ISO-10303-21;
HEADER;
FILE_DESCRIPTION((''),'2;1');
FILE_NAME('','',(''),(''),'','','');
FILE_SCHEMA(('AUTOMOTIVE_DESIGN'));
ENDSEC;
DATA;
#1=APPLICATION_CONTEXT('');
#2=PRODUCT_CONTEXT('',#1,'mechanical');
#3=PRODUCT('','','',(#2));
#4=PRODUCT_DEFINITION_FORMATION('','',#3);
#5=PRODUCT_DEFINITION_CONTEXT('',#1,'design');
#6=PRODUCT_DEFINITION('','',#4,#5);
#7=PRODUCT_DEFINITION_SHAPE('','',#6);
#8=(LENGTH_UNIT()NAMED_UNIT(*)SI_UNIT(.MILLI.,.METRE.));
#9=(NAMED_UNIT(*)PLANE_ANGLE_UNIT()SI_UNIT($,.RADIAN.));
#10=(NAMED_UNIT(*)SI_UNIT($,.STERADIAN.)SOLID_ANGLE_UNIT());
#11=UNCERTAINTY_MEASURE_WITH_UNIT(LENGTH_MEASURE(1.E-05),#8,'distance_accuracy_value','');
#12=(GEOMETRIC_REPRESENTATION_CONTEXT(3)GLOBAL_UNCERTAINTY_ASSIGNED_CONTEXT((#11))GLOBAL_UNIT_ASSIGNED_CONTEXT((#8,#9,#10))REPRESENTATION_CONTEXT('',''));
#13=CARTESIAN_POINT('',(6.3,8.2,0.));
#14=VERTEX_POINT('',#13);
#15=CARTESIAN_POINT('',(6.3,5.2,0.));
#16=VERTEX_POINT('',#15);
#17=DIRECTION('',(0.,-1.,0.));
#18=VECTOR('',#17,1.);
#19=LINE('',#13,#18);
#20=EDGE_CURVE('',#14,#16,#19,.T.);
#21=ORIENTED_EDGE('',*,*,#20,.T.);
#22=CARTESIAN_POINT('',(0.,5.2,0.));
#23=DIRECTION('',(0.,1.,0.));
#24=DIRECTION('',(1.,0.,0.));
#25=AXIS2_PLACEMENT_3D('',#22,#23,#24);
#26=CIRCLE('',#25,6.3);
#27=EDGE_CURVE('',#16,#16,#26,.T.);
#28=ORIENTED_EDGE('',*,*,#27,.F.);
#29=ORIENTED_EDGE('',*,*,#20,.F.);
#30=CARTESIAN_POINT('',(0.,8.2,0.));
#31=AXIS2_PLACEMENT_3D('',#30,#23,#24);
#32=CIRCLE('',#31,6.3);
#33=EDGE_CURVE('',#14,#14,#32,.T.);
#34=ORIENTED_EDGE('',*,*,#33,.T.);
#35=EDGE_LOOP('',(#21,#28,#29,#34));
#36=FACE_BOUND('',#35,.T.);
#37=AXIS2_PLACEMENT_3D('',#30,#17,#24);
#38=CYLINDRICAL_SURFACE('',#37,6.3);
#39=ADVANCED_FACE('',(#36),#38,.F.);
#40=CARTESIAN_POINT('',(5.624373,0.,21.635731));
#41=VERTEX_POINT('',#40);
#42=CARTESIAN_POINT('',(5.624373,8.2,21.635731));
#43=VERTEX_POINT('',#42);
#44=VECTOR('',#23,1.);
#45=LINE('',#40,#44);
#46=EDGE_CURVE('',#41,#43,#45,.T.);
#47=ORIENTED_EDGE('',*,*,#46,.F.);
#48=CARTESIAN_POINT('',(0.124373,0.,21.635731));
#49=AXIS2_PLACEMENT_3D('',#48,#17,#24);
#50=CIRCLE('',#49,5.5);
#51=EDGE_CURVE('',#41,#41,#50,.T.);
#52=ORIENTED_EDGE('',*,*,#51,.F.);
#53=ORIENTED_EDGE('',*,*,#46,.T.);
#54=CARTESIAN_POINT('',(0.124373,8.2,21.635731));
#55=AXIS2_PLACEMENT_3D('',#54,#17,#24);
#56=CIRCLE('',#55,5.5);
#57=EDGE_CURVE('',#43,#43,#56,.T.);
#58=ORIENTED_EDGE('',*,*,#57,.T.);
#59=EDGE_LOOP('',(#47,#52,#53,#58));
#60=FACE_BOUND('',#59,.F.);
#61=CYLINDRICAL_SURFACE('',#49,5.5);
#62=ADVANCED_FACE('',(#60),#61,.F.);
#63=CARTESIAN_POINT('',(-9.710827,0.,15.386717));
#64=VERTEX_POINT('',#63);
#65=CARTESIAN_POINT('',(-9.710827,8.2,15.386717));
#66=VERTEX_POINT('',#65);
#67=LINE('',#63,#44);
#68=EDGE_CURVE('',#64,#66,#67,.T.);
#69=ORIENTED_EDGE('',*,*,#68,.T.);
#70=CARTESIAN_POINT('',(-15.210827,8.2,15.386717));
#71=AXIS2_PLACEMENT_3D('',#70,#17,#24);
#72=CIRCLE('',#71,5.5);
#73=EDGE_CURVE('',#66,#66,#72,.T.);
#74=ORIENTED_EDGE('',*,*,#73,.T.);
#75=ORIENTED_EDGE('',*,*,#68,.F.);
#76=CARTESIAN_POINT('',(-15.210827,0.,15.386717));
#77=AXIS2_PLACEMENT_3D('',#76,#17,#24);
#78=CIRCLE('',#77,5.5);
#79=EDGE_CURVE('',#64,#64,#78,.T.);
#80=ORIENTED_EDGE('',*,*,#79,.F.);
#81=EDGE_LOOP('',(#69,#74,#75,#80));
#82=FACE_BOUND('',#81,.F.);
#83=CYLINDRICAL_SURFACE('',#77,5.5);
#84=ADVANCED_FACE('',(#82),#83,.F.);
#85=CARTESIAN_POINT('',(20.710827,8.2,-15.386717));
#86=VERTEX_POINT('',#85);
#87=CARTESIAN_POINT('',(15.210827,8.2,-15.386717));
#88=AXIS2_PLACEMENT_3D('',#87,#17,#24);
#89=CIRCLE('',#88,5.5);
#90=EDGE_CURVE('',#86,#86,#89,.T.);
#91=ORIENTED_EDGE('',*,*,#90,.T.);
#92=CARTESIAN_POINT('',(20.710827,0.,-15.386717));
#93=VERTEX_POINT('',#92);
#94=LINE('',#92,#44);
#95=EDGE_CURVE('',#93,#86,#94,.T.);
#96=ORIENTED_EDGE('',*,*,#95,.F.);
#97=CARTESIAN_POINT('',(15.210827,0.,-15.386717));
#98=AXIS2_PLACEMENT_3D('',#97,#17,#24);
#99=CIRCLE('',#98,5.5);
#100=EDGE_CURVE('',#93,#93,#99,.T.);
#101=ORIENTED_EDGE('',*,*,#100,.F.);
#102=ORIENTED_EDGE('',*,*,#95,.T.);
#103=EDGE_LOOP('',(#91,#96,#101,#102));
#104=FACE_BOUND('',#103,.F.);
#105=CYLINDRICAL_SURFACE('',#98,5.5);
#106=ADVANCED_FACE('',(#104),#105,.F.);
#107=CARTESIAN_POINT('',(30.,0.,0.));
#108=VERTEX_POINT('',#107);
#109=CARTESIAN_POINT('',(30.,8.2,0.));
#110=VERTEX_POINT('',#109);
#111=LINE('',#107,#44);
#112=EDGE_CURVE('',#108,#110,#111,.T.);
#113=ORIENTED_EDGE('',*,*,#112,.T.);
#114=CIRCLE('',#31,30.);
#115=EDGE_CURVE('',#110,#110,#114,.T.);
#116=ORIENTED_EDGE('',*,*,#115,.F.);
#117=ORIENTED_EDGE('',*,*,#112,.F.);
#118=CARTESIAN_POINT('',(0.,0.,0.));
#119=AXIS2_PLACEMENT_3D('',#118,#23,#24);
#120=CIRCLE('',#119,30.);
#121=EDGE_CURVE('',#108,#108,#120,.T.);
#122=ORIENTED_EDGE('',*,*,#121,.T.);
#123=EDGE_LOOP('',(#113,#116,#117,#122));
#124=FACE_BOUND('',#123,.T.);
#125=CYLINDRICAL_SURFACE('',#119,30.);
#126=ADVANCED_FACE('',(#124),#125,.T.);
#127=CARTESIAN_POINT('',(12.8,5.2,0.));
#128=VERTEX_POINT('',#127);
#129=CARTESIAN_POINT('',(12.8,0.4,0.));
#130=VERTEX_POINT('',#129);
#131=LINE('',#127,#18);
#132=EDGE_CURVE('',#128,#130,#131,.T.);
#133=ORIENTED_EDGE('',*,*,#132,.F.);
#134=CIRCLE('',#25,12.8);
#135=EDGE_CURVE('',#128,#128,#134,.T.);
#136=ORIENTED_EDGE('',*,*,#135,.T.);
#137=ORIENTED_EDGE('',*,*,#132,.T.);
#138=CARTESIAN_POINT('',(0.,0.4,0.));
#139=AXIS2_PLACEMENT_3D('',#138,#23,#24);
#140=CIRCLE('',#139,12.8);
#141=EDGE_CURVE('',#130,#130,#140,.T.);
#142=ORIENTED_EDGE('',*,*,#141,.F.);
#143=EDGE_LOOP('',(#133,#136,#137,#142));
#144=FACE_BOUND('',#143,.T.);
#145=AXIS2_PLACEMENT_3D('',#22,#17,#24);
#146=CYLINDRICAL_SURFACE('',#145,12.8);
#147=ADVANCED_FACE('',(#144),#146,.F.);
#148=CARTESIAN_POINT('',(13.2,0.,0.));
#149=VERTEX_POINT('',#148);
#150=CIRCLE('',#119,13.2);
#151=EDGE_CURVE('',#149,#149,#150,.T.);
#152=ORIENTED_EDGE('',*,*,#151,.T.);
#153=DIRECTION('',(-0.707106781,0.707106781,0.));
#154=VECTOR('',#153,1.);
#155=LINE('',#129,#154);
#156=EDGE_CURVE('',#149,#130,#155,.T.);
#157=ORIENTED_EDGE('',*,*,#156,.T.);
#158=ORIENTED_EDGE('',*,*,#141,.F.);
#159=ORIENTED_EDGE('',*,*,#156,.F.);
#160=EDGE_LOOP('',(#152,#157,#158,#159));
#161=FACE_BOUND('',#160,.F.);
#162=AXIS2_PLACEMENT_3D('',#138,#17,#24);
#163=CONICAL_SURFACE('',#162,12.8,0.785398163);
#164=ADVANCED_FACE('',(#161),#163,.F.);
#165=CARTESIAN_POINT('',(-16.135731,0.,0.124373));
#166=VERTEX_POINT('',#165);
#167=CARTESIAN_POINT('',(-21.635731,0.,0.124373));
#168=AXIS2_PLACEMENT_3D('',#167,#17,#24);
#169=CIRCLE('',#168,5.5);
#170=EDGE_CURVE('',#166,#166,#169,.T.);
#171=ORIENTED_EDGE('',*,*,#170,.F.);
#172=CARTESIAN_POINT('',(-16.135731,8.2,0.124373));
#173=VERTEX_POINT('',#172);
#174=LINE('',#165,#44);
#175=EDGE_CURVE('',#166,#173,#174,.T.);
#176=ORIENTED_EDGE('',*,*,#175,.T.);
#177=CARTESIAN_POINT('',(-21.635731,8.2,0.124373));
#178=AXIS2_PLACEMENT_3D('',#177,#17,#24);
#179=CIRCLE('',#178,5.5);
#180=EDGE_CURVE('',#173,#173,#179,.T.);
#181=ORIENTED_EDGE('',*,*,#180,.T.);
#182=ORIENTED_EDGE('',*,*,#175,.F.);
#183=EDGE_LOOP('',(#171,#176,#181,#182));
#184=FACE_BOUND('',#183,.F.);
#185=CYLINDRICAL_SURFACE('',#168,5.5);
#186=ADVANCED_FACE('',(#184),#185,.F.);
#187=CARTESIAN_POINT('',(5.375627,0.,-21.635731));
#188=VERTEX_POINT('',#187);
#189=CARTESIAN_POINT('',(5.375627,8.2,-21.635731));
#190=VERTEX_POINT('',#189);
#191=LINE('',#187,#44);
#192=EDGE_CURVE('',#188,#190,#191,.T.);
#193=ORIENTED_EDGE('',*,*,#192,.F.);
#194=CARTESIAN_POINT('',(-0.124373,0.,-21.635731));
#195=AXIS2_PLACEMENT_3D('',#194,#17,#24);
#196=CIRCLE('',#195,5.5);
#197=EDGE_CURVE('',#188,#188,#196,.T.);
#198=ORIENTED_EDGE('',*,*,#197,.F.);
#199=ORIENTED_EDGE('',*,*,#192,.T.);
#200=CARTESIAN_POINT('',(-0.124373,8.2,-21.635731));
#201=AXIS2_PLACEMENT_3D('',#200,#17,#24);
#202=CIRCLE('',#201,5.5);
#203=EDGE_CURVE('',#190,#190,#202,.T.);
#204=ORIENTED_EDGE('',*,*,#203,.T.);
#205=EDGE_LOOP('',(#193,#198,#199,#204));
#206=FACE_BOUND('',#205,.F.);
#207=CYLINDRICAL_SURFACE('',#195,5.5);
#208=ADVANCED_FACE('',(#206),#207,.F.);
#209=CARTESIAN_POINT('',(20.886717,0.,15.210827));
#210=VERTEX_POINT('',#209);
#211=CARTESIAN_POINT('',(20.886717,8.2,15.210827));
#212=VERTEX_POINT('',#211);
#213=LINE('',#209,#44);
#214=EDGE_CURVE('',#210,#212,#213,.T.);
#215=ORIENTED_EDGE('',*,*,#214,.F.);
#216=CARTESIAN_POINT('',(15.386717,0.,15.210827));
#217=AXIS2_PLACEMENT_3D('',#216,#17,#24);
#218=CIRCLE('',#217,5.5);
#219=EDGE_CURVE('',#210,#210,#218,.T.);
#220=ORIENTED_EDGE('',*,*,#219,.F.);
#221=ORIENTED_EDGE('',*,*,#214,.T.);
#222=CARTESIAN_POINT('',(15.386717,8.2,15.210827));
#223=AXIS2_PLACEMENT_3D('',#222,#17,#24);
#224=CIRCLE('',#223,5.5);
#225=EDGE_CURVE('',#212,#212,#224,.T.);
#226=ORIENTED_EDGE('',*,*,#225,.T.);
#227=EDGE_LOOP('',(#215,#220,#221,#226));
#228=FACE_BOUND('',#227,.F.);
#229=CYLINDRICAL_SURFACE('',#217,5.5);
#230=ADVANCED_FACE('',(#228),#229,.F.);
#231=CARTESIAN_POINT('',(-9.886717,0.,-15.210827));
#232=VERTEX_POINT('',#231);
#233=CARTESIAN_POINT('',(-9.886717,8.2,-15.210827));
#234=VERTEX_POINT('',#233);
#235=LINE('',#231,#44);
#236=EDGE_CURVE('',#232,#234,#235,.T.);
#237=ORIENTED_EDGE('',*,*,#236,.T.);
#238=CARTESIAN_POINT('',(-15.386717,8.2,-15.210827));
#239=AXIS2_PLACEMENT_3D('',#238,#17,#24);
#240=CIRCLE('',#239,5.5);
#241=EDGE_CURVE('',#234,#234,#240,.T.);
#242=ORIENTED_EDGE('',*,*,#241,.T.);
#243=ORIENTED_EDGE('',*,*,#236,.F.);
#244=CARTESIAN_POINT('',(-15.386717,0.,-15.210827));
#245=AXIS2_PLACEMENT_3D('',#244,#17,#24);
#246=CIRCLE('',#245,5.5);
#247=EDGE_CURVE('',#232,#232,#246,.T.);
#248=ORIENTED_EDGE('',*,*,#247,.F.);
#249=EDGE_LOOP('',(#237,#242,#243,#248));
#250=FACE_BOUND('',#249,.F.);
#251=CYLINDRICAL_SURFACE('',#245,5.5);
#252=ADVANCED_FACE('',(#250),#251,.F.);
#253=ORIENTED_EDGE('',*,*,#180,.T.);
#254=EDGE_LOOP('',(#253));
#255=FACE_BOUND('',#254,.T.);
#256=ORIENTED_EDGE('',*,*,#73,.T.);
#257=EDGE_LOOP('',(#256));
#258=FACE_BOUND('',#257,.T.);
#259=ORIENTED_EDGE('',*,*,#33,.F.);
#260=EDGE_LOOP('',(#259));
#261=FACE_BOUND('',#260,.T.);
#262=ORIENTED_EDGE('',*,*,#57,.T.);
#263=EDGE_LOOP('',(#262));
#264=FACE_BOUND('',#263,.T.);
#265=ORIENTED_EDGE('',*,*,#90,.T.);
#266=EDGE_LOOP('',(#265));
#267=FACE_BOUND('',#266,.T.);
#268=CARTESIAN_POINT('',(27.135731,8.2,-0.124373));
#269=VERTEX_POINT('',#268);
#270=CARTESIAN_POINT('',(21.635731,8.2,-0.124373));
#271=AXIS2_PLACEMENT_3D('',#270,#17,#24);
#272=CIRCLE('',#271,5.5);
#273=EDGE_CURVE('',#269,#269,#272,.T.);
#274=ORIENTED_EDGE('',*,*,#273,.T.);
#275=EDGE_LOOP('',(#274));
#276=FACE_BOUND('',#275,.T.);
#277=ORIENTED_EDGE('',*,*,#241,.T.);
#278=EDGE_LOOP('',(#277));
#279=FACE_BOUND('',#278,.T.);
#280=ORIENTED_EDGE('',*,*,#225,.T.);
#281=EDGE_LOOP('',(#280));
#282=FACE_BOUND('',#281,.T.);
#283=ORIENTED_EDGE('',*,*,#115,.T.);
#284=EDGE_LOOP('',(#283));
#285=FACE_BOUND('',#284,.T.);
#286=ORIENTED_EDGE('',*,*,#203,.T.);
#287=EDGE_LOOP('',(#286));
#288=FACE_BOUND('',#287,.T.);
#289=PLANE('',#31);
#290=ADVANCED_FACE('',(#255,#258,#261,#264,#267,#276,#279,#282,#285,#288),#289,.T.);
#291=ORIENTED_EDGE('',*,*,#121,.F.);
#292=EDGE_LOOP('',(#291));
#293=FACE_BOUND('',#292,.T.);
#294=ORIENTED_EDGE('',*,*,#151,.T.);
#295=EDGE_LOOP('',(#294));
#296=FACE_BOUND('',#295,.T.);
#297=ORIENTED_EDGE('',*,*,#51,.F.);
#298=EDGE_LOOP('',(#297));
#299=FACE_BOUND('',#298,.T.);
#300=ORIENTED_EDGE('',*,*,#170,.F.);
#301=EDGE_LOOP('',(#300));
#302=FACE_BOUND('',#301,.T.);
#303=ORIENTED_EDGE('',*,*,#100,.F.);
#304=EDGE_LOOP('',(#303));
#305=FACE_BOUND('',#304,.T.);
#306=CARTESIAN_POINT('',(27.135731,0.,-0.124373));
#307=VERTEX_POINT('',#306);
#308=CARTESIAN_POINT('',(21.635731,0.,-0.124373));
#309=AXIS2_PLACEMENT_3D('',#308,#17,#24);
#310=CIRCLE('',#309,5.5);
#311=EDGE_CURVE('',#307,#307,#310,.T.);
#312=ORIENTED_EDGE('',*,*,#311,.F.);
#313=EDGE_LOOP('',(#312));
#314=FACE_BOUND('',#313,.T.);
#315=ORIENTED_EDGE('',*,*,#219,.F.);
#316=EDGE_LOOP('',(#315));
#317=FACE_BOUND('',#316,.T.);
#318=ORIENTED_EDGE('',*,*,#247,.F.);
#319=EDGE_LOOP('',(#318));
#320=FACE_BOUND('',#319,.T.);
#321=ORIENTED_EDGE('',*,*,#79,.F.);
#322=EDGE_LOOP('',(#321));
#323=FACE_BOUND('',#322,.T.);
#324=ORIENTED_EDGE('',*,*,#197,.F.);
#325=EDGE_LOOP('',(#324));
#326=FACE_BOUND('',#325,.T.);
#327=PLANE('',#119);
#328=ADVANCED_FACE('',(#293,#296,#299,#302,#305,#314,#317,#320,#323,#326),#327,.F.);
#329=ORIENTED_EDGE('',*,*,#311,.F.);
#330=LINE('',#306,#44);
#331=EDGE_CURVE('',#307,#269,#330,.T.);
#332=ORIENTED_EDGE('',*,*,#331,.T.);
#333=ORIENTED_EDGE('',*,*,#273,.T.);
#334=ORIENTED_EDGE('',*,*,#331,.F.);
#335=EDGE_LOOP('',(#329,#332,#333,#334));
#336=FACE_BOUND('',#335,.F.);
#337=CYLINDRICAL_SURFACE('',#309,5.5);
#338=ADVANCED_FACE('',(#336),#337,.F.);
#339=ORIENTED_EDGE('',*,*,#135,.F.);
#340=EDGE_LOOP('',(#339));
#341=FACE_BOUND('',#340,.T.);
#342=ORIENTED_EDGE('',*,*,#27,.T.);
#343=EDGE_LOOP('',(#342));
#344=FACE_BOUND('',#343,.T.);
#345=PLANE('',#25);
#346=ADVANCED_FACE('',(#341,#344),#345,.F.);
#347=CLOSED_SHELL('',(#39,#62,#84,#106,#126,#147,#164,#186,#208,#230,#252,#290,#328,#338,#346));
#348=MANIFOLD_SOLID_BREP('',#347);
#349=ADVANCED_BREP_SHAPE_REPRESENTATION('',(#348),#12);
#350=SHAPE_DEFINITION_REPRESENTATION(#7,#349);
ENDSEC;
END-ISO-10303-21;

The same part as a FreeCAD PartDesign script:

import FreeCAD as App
import Part
import Sketcher

V = App.Vector


def edges_at(feature, points):
    """Names of the edges that pass closest to the given points."""
    edges = feature.Shape.Edges
    near = lambda p: min(range(len(edges)), key=lambda i: edges[i].distToShape(Part.Vertex(*p))[0])
    return sorted({f"Edge{near(p) + 1}" for p in points})


def add_polygon(sketch, points):
    """Adds a closed chain of lines whose ends are joined by coincident constraints."""
    first, n = sketch.GeometryCount, len(points)
    for a, b in zip(points, points[1:] + points[:1]):
        sketch.addGeometry(Part.LineSegment(App.Vector(*a, 0), App.Vector(*b, 0)), False)
    for i in range(n):
        sketch.addConstraint(Sketcher.Constraint("Coincident", first + i, 2, first + (i + 1) % n, 1))

doc = App.newDocument("Part")
body = doc.addObject("PartDesign::Body", "Body")

# Sketch on XY plane
sketch1 = doc.addObject("Sketcher::SketchObject", "Sketch")
body.addObject(sketch1)
sketch1.AttachmentSupport = (doc.XY_Plane, [""])
sketch1.MapMode = "FlatFace"
add_polygon(sketch1, [(30, 0), (30, 8.2), (6.3, 8.2), (6.3, 5.2), (12.8, 5.2), (12.8, 0)])  # lines 0-5
sketch1.addConstraint(Sketcher.Constraint("Vertical", 0))
sketch1.addConstraint(Sketcher.Constraint("Horizontal", 1))
sketch1.addConstraint(Sketcher.Constraint("Vertical", 2))
sketch1.addConstraint(Sketcher.Constraint("Horizontal", 3))
sketch1.addConstraint(Sketcher.Constraint("Vertical", 4))
sketch1.addConstraint(Sketcher.Constraint("Horizontal", 5))
sketch1.addConstraint(Sketcher.Constraint("PointOnObject", 4, 2, -1))
sketch1.addConstraint(Sketcher.Constraint("DistanceY", 2, 2, 2, 1, 3.0))
sketch1.addConstraint(Sketcher.Constraint("DistanceX", 1, 2, 1, 1, 23.7))
sketch1.addConstraint(Sketcher.Constraint("DistanceX", 3, 1, 3, 2, 6.5))
sketch1.addConstraint(Sketcher.Constraint("DistanceY", 0, 1, 0, 2, 8.2))
sketch1.addConstraint(Sketcher.Constraint("DistanceX", -1, 1, 0, 2, 30.0))
revolution = doc.addObject("PartDesign::Revolution", "Revolution")
body.addObject(revolution)
revolution.Profile = sketch1
revolution.ReferenceAxis = (sketch1, ["V_Axis"])
revolution.Angle = 360

# Sketch on XZ plane
sketch2 = doc.addObject("Sketcher::SketchObject", "Sketch001")
body.addObject(sketch2)
sketch2.AttachmentSupport = (doc.XZ_Plane, [""])
sketch2.MapMode = "FlatFace"
sketch2.addGeometry(Part.Circle(V(0, 22, 0), V(0, 0, 1), 6), False)
sketch2.addGeometry(Part.Circle(V(15, 15, 0), V(0, 0, 1), 6), False)
sketch2.addGeometry(Part.Circle(V(22, 0, 0), V(0, 0, 1), 6), False)
sketch2.addGeometry(Part.Circle(V(15, -15, 0), V(0, 0, 1), 6), False)
sketch2.addGeometry(Part.Circle(V(0, -22, 0), V(0, 0, 1), 6), False)
sketch2.addGeometry(Part.Circle(V(-15, -15, 0), V(0, 0, 1), 6), False)
sketch2.addGeometry(Part.Circle(V(-22, 0, 0), V(0, 0, 1), 6), False)
sketch2.addGeometry(Part.Circle(V(-15, 15, 0), V(0, 0, 1), 6), False)
sketch2.addConstraint(Sketcher.Constraint("Equal", 0, 1))
sketch2.addConstraint(Sketcher.Constraint("Equal", 1, 2))
sketch2.addConstraint(Sketcher.Constraint("Equal", 2, 3))
sketch2.addConstraint(Sketcher.Constraint("Equal", 3, 4))
sketch2.addConstraint(Sketcher.Constraint("Equal", 4, 5))
sketch2.addConstraint(Sketcher.Constraint("Equal", 5, 6))
sketch2.addConstraint(Sketcher.Constraint("Equal", 6, 7))
sketch2.addConstraint(Sketcher.Constraint("Symmetric", 0, 3, 4, 3, -1, 1))
sketch2.addConstraint(Sketcher.Constraint("Symmetric", 1, 3, 5, 3, -1, 1))
sketch2.addConstraint(Sketcher.Constraint("Symmetric", 2, 3, 6, 3, -1, 1))
sketch2.addConstraint(Sketcher.Constraint("Symmetric", 3, 3, 7, 3, -1, 1))
sketch2.addConstraint(Sketcher.Constraint("Diameter", 0, 11.0))
sketch2.addConstraint(Sketcher.Constraint("DistanceY", 2, 3, 1, 3, 15.3352))
sketch2.addConstraint(Sketcher.Constraint("DistanceX", 4, 3, 3, 3, 15.3352))
sketch2.addConstraint(Sketcher.Constraint("DistanceY", -1, 1, 0, 3, 21.635731))
sketch2.addConstraint(Sketcher.Constraint("DistanceX", -1, 1, 2, 3, 21.635731))
sketch2.addConstraint(Sketcher.Constraint("DistanceX", 0, 3, 2, 3, 21.511358))
sketch2.addConstraint(Sketcher.Constraint("DistanceX", 3, 3, 1, 3, 0.17589))
sketch2.addConstraint(Sketcher.Constraint("DistanceY", 4, 3, 2, 3, 21.511358))
sketch2.addConstraint(Sketcher.Constraint("DistanceY", 3, 3, 5, 3, 0.17589))
pocket1 = doc.addObject("PartDesign::Pocket", "Pocket")
body.addObject(pocket1)
pocket1.Profile = sketch2
pocket1.Type = "ThroughAll"
doc.recompute()

chamfer = doc.addObject("PartDesign::Chamfer", "Chamfer")
body.addObject(chamfer)
chamfer.Base = (pocket1, edges_at(pocket1, [(-12.8, 0, 0)]))
chamfer.Size = 0.4

doc.recompute()
